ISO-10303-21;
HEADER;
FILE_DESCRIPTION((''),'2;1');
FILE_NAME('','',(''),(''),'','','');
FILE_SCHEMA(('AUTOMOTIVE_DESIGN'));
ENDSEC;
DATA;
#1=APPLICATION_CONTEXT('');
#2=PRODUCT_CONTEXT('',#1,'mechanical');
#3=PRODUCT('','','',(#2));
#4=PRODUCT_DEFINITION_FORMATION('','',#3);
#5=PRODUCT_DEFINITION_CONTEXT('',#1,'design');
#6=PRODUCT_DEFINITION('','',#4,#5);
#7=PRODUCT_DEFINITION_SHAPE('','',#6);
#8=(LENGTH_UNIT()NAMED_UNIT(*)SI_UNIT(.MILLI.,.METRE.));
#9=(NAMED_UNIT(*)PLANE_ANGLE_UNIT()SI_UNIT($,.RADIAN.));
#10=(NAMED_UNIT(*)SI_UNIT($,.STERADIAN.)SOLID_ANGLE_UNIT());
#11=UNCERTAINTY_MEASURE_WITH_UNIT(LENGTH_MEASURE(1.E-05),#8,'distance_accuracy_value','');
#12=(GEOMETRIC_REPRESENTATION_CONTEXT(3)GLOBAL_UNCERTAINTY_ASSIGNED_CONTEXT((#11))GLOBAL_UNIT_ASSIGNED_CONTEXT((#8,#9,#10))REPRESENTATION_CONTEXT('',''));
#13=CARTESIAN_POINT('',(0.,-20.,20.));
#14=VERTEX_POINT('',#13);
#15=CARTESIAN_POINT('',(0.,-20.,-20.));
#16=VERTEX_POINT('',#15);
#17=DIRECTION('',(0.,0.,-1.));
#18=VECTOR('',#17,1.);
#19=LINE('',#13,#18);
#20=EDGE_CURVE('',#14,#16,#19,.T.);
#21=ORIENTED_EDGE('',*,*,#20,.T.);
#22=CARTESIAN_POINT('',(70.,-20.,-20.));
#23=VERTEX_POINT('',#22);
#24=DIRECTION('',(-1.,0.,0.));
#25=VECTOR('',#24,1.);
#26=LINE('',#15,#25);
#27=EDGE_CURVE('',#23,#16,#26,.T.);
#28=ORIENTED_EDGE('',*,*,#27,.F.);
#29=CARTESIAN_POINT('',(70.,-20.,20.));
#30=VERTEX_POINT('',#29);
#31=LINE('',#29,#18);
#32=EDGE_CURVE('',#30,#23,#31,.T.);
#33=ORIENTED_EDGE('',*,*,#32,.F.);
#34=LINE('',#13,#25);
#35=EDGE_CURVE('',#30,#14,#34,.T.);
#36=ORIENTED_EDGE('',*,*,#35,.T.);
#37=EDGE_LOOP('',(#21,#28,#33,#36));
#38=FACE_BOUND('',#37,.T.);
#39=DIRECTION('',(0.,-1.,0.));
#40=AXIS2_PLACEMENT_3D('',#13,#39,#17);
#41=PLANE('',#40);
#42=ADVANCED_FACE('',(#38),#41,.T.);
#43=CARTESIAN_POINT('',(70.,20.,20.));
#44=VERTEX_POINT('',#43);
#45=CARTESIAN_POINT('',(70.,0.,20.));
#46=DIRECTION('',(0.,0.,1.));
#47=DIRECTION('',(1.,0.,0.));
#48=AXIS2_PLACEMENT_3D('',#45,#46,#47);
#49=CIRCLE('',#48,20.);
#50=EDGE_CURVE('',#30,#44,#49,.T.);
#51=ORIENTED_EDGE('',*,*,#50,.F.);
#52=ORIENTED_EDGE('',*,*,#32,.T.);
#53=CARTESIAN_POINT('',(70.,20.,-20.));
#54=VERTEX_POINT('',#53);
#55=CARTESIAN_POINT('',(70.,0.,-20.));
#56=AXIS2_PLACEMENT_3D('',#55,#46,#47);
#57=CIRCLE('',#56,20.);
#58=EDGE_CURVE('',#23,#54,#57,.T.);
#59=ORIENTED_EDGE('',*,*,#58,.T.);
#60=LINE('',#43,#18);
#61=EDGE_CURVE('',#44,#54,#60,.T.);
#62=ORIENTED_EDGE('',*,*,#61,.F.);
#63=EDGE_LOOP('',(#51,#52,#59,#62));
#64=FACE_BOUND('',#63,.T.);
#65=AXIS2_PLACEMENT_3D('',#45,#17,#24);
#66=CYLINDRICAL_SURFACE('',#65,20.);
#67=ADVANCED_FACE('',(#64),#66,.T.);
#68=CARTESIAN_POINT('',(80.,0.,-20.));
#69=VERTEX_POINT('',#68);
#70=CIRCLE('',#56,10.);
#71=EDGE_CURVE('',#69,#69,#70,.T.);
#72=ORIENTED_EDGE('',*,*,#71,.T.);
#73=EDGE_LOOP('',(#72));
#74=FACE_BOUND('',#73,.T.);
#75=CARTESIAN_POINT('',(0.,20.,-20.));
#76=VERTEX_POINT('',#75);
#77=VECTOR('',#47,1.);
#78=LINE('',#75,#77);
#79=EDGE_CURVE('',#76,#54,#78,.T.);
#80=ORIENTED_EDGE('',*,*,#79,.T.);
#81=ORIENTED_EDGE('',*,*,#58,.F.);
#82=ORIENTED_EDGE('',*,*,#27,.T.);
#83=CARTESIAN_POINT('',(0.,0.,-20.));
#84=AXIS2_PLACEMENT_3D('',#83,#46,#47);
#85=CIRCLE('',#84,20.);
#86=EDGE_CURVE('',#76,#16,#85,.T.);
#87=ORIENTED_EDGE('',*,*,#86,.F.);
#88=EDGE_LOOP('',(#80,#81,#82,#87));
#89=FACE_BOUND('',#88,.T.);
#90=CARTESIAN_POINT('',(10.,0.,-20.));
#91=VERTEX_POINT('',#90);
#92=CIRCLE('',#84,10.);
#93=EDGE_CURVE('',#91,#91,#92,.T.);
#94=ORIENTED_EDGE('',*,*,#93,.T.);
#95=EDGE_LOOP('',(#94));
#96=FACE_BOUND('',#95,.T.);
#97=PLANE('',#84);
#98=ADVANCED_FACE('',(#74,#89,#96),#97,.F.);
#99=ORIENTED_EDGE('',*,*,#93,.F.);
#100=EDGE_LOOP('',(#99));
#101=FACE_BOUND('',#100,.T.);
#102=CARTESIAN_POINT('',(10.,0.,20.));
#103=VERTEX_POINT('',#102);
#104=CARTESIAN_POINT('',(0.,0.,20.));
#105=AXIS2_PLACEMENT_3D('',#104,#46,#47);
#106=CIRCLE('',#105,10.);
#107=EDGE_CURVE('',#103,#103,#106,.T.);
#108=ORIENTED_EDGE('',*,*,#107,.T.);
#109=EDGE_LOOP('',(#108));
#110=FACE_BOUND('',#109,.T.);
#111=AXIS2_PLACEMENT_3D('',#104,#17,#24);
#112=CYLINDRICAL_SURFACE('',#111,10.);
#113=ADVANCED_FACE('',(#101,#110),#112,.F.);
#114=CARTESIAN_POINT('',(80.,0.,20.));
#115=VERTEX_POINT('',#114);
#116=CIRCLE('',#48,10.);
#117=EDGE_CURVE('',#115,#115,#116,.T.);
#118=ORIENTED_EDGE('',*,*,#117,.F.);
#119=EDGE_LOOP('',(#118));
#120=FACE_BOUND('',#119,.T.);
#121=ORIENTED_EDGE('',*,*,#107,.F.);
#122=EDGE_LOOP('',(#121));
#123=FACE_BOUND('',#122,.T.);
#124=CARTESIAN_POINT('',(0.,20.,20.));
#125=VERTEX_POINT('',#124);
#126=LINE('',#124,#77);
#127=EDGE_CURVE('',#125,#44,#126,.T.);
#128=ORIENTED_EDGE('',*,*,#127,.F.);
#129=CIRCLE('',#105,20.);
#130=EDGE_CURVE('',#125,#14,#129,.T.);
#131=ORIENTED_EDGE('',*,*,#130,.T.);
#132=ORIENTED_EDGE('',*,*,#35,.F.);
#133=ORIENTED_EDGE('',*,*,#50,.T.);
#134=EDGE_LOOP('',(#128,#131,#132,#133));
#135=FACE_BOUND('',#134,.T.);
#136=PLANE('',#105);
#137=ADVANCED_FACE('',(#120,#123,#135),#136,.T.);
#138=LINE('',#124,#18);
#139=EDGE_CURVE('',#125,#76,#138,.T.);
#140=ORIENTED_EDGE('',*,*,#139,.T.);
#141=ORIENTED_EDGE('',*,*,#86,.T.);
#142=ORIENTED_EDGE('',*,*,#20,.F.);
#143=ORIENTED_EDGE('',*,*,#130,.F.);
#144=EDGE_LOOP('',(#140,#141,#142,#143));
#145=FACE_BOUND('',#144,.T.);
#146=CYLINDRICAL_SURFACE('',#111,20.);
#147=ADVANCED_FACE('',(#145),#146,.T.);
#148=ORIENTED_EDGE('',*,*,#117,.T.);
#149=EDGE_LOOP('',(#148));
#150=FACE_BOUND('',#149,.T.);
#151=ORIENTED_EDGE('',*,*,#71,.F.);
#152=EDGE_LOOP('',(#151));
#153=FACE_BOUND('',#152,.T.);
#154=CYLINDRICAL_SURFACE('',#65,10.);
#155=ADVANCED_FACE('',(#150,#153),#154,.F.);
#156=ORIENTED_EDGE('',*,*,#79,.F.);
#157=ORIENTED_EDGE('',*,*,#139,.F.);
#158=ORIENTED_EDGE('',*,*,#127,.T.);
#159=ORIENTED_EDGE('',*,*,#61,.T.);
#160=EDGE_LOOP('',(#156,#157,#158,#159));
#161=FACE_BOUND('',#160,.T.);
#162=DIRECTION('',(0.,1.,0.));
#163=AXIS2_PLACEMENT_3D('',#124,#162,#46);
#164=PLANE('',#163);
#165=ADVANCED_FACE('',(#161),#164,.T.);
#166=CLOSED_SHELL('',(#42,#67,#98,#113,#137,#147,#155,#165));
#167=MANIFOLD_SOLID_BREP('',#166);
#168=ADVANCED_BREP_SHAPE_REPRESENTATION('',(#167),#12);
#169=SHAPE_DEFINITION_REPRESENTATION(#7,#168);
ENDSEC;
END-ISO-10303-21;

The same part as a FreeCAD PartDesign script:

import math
import FreeCAD as App
import Part
import Sketcher
Q = App.Units.Quantity

doc = App.newDocument("Part")
body = doc.addObject("PartDesign::Body", "Body")

# Sketch on XY plane
sketch1 = doc.addObject("Sketcher::SketchObject", "Sketch")
body.addObject(sketch1)
sketch1.AttachmentSupport = (doc.XY_Plane, [""])
sketch1.MapMode = "FlatFace"
sketch1.addGeometry([
    Part.LineSegment(App.Vector(0, -20, 0), App.Vector(70, -20, 0)),  # 0
    Part.ArcOfCircle(Part.Circle(App.Vector(70, 0, 0), App.Vector(0, 0, 1), 20), math.radians(-90), math.radians(90)),  # 1
    Part.LineSegment(App.Vector(70, 20, 0), App.Vector(0, 20, 0)),  # 2
    Part.ArcOfCircle(Part.Circle(App.Vector(0, 0, 0), App.Vector(0, 0, 1), 20), math.radians(90), math.radians(270)),  # 3
    Part.Circle(App.Vector(0, 0, 0), App.Vector(0, 0, 1), 10),  # 4
    Part.Circle(App.Vector(70, 0, 0), App.Vector(0, 0, 1), 10),  # 5
], False)
sketch1.addConstraint([
    Sketcher.Constraint("Tangent", 0, 2, 1, 1),
    Sketcher.Constraint("Tangent", 1, 2, 2, 1),
    Sketcher.Constraint("Tangent", 2, 2, 3, 1),
    Sketcher.Constraint("Tangent", 3, 2, 0, 1),
    Sketcher.Constraint("Horizontal", 0),
    Sketcher.Constraint("Horizontal", 2),
    Sketcher.Constraint("Coincident", 3, 3, -1, 1),
    Sketcher.Constraint("Coincident", 4, 3, -1, 1),
    Sketcher.Constraint("Coincident", 5, 3, 1, 3),
    Sketcher.Constraint("Equal", 4, 5),
    Sketcher.Constraint("Diameter", 4, Q("20 mm")),
    Sketcher.Constraint("Radius", 1, Q("20 mm")),
    Sketcher.Constraint("DistanceX", 0, 1, 0, 2, Q("70 mm")),
])
pad1 = doc.addObject("PartDesign::Pad", "Pad")
body.addObject(pad1)
pad1.Profile = sketch1
pad1.Length = 40
pad1.Midplane = True

doc.recompute()
